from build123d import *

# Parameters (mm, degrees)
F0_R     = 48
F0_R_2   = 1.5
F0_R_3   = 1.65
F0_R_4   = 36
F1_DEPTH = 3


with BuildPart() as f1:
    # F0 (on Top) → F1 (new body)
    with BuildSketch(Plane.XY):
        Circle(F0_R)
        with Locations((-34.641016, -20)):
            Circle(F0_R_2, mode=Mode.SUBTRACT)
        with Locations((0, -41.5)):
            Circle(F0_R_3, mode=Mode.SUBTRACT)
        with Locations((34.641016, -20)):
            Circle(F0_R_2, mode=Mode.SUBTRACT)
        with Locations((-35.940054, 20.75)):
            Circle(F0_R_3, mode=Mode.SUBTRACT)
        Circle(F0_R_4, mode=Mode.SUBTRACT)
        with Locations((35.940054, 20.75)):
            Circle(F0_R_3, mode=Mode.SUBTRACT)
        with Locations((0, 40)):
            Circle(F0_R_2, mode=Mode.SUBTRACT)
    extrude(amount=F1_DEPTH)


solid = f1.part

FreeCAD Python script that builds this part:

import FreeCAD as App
import Part
import Sketcher

doc = App.newDocument("Part")
body = doc.addObject("PartDesign::Body", "Body")

# Sketch on XY plane
sketch1 = body.newObject("Sketcher::SketchObject", "Sketch")
sketch1.AttachmentSupport = (doc.getObject("XY_Plane"), [""])
sketch1.MapMode = "FlatFace"
sketch1.addGeometry([
    Part.Circle(App.Vector(0, 0, 0), App.Vector(0, 0, 1), 48),  # 0
    Part.Circle(App.Vector(-34.641016, -20, 0), App.Vector(0, 0, 1), 1.5),  # 1
    Part.Circle(App.Vector(0, -41.5, 0), App.Vector(0, 0, 1), 1.65),  # 2
    Part.Circle(App.Vector(34.641016, -20, 0), App.Vector(0, 0, 1), 1.5),  # 3
    Part.Circle(App.Vector(-35.940054, 20.75, 0), App.Vector(0, 0, 1), 1.65),  # 4
    Part.Circle(App.Vector(0, 0, 0), App.Vector(0, 0, 1), 36),  # 5
    Part.Circle(App.Vector(0, 40, 0), App.Vector(0, 0, 1), 1.5),  # 6
    Part.Circle(App.Vector(35.940054, 20.75, 0), App.Vector(0, 0, 1), 1.65),  # 7
], False)
sketch1.addConstraint([
    Sketcher.Constraint("Coincident", 0, 3, -1, 1),
    Sketcher.Constraint("Coincident", 5, 3, -1, 1),
    Sketcher.Constraint("Equal", 1, 3),
    Sketcher.Constraint("Equal", 2, 4),
    Sketcher.Constraint("Equal", 3, 6),
    Sketcher.Constraint("Equal", 4, 7),
    Sketcher.Constraint("Symmetric", 1, 3, 3, 3, -2),
    Sketcher.Constraint("Symmetric", 4, 3, 7, 3, -2),
    Sketcher.Constraint("PointOnObject", 2, 3, -2),
    Sketcher.Constraint("PointOnObject", 6, 3, -2),
    Sketcher.Constraint("Diameter", 0, 96.0),
    Sketcher.Constraint("Diameter", 1, 3.0),
    Sketcher.Constraint("Diameter", 5, 72.0),
    Sketcher.Constraint("Diameter", 2, 3.3),
    Sketcher.Constraint("DistanceY", 1, 3, -1, 1, 20.0),
    Sketcher.Constraint("DistanceY", -1, 1, 6, 3, 40.0),
    Sketcher.Constraint("DistanceY", 2, 3, -1, 1, 41.5),
    Sketcher.Constraint("DistanceY", -1, 1, 4, 3, 20.75),
    Sketcher.Constraint("DistanceX", 1, 3, 3, 3, 69.282032),
    Sketcher.Constraint("DistanceX", 4, 3, 1, 3, 1.299038),
])
pad1 = body.newObject("PartDesign::Pad", "Pad")
pad1.Profile = sketch1
pad1.Length = 3

doc.recompute()
